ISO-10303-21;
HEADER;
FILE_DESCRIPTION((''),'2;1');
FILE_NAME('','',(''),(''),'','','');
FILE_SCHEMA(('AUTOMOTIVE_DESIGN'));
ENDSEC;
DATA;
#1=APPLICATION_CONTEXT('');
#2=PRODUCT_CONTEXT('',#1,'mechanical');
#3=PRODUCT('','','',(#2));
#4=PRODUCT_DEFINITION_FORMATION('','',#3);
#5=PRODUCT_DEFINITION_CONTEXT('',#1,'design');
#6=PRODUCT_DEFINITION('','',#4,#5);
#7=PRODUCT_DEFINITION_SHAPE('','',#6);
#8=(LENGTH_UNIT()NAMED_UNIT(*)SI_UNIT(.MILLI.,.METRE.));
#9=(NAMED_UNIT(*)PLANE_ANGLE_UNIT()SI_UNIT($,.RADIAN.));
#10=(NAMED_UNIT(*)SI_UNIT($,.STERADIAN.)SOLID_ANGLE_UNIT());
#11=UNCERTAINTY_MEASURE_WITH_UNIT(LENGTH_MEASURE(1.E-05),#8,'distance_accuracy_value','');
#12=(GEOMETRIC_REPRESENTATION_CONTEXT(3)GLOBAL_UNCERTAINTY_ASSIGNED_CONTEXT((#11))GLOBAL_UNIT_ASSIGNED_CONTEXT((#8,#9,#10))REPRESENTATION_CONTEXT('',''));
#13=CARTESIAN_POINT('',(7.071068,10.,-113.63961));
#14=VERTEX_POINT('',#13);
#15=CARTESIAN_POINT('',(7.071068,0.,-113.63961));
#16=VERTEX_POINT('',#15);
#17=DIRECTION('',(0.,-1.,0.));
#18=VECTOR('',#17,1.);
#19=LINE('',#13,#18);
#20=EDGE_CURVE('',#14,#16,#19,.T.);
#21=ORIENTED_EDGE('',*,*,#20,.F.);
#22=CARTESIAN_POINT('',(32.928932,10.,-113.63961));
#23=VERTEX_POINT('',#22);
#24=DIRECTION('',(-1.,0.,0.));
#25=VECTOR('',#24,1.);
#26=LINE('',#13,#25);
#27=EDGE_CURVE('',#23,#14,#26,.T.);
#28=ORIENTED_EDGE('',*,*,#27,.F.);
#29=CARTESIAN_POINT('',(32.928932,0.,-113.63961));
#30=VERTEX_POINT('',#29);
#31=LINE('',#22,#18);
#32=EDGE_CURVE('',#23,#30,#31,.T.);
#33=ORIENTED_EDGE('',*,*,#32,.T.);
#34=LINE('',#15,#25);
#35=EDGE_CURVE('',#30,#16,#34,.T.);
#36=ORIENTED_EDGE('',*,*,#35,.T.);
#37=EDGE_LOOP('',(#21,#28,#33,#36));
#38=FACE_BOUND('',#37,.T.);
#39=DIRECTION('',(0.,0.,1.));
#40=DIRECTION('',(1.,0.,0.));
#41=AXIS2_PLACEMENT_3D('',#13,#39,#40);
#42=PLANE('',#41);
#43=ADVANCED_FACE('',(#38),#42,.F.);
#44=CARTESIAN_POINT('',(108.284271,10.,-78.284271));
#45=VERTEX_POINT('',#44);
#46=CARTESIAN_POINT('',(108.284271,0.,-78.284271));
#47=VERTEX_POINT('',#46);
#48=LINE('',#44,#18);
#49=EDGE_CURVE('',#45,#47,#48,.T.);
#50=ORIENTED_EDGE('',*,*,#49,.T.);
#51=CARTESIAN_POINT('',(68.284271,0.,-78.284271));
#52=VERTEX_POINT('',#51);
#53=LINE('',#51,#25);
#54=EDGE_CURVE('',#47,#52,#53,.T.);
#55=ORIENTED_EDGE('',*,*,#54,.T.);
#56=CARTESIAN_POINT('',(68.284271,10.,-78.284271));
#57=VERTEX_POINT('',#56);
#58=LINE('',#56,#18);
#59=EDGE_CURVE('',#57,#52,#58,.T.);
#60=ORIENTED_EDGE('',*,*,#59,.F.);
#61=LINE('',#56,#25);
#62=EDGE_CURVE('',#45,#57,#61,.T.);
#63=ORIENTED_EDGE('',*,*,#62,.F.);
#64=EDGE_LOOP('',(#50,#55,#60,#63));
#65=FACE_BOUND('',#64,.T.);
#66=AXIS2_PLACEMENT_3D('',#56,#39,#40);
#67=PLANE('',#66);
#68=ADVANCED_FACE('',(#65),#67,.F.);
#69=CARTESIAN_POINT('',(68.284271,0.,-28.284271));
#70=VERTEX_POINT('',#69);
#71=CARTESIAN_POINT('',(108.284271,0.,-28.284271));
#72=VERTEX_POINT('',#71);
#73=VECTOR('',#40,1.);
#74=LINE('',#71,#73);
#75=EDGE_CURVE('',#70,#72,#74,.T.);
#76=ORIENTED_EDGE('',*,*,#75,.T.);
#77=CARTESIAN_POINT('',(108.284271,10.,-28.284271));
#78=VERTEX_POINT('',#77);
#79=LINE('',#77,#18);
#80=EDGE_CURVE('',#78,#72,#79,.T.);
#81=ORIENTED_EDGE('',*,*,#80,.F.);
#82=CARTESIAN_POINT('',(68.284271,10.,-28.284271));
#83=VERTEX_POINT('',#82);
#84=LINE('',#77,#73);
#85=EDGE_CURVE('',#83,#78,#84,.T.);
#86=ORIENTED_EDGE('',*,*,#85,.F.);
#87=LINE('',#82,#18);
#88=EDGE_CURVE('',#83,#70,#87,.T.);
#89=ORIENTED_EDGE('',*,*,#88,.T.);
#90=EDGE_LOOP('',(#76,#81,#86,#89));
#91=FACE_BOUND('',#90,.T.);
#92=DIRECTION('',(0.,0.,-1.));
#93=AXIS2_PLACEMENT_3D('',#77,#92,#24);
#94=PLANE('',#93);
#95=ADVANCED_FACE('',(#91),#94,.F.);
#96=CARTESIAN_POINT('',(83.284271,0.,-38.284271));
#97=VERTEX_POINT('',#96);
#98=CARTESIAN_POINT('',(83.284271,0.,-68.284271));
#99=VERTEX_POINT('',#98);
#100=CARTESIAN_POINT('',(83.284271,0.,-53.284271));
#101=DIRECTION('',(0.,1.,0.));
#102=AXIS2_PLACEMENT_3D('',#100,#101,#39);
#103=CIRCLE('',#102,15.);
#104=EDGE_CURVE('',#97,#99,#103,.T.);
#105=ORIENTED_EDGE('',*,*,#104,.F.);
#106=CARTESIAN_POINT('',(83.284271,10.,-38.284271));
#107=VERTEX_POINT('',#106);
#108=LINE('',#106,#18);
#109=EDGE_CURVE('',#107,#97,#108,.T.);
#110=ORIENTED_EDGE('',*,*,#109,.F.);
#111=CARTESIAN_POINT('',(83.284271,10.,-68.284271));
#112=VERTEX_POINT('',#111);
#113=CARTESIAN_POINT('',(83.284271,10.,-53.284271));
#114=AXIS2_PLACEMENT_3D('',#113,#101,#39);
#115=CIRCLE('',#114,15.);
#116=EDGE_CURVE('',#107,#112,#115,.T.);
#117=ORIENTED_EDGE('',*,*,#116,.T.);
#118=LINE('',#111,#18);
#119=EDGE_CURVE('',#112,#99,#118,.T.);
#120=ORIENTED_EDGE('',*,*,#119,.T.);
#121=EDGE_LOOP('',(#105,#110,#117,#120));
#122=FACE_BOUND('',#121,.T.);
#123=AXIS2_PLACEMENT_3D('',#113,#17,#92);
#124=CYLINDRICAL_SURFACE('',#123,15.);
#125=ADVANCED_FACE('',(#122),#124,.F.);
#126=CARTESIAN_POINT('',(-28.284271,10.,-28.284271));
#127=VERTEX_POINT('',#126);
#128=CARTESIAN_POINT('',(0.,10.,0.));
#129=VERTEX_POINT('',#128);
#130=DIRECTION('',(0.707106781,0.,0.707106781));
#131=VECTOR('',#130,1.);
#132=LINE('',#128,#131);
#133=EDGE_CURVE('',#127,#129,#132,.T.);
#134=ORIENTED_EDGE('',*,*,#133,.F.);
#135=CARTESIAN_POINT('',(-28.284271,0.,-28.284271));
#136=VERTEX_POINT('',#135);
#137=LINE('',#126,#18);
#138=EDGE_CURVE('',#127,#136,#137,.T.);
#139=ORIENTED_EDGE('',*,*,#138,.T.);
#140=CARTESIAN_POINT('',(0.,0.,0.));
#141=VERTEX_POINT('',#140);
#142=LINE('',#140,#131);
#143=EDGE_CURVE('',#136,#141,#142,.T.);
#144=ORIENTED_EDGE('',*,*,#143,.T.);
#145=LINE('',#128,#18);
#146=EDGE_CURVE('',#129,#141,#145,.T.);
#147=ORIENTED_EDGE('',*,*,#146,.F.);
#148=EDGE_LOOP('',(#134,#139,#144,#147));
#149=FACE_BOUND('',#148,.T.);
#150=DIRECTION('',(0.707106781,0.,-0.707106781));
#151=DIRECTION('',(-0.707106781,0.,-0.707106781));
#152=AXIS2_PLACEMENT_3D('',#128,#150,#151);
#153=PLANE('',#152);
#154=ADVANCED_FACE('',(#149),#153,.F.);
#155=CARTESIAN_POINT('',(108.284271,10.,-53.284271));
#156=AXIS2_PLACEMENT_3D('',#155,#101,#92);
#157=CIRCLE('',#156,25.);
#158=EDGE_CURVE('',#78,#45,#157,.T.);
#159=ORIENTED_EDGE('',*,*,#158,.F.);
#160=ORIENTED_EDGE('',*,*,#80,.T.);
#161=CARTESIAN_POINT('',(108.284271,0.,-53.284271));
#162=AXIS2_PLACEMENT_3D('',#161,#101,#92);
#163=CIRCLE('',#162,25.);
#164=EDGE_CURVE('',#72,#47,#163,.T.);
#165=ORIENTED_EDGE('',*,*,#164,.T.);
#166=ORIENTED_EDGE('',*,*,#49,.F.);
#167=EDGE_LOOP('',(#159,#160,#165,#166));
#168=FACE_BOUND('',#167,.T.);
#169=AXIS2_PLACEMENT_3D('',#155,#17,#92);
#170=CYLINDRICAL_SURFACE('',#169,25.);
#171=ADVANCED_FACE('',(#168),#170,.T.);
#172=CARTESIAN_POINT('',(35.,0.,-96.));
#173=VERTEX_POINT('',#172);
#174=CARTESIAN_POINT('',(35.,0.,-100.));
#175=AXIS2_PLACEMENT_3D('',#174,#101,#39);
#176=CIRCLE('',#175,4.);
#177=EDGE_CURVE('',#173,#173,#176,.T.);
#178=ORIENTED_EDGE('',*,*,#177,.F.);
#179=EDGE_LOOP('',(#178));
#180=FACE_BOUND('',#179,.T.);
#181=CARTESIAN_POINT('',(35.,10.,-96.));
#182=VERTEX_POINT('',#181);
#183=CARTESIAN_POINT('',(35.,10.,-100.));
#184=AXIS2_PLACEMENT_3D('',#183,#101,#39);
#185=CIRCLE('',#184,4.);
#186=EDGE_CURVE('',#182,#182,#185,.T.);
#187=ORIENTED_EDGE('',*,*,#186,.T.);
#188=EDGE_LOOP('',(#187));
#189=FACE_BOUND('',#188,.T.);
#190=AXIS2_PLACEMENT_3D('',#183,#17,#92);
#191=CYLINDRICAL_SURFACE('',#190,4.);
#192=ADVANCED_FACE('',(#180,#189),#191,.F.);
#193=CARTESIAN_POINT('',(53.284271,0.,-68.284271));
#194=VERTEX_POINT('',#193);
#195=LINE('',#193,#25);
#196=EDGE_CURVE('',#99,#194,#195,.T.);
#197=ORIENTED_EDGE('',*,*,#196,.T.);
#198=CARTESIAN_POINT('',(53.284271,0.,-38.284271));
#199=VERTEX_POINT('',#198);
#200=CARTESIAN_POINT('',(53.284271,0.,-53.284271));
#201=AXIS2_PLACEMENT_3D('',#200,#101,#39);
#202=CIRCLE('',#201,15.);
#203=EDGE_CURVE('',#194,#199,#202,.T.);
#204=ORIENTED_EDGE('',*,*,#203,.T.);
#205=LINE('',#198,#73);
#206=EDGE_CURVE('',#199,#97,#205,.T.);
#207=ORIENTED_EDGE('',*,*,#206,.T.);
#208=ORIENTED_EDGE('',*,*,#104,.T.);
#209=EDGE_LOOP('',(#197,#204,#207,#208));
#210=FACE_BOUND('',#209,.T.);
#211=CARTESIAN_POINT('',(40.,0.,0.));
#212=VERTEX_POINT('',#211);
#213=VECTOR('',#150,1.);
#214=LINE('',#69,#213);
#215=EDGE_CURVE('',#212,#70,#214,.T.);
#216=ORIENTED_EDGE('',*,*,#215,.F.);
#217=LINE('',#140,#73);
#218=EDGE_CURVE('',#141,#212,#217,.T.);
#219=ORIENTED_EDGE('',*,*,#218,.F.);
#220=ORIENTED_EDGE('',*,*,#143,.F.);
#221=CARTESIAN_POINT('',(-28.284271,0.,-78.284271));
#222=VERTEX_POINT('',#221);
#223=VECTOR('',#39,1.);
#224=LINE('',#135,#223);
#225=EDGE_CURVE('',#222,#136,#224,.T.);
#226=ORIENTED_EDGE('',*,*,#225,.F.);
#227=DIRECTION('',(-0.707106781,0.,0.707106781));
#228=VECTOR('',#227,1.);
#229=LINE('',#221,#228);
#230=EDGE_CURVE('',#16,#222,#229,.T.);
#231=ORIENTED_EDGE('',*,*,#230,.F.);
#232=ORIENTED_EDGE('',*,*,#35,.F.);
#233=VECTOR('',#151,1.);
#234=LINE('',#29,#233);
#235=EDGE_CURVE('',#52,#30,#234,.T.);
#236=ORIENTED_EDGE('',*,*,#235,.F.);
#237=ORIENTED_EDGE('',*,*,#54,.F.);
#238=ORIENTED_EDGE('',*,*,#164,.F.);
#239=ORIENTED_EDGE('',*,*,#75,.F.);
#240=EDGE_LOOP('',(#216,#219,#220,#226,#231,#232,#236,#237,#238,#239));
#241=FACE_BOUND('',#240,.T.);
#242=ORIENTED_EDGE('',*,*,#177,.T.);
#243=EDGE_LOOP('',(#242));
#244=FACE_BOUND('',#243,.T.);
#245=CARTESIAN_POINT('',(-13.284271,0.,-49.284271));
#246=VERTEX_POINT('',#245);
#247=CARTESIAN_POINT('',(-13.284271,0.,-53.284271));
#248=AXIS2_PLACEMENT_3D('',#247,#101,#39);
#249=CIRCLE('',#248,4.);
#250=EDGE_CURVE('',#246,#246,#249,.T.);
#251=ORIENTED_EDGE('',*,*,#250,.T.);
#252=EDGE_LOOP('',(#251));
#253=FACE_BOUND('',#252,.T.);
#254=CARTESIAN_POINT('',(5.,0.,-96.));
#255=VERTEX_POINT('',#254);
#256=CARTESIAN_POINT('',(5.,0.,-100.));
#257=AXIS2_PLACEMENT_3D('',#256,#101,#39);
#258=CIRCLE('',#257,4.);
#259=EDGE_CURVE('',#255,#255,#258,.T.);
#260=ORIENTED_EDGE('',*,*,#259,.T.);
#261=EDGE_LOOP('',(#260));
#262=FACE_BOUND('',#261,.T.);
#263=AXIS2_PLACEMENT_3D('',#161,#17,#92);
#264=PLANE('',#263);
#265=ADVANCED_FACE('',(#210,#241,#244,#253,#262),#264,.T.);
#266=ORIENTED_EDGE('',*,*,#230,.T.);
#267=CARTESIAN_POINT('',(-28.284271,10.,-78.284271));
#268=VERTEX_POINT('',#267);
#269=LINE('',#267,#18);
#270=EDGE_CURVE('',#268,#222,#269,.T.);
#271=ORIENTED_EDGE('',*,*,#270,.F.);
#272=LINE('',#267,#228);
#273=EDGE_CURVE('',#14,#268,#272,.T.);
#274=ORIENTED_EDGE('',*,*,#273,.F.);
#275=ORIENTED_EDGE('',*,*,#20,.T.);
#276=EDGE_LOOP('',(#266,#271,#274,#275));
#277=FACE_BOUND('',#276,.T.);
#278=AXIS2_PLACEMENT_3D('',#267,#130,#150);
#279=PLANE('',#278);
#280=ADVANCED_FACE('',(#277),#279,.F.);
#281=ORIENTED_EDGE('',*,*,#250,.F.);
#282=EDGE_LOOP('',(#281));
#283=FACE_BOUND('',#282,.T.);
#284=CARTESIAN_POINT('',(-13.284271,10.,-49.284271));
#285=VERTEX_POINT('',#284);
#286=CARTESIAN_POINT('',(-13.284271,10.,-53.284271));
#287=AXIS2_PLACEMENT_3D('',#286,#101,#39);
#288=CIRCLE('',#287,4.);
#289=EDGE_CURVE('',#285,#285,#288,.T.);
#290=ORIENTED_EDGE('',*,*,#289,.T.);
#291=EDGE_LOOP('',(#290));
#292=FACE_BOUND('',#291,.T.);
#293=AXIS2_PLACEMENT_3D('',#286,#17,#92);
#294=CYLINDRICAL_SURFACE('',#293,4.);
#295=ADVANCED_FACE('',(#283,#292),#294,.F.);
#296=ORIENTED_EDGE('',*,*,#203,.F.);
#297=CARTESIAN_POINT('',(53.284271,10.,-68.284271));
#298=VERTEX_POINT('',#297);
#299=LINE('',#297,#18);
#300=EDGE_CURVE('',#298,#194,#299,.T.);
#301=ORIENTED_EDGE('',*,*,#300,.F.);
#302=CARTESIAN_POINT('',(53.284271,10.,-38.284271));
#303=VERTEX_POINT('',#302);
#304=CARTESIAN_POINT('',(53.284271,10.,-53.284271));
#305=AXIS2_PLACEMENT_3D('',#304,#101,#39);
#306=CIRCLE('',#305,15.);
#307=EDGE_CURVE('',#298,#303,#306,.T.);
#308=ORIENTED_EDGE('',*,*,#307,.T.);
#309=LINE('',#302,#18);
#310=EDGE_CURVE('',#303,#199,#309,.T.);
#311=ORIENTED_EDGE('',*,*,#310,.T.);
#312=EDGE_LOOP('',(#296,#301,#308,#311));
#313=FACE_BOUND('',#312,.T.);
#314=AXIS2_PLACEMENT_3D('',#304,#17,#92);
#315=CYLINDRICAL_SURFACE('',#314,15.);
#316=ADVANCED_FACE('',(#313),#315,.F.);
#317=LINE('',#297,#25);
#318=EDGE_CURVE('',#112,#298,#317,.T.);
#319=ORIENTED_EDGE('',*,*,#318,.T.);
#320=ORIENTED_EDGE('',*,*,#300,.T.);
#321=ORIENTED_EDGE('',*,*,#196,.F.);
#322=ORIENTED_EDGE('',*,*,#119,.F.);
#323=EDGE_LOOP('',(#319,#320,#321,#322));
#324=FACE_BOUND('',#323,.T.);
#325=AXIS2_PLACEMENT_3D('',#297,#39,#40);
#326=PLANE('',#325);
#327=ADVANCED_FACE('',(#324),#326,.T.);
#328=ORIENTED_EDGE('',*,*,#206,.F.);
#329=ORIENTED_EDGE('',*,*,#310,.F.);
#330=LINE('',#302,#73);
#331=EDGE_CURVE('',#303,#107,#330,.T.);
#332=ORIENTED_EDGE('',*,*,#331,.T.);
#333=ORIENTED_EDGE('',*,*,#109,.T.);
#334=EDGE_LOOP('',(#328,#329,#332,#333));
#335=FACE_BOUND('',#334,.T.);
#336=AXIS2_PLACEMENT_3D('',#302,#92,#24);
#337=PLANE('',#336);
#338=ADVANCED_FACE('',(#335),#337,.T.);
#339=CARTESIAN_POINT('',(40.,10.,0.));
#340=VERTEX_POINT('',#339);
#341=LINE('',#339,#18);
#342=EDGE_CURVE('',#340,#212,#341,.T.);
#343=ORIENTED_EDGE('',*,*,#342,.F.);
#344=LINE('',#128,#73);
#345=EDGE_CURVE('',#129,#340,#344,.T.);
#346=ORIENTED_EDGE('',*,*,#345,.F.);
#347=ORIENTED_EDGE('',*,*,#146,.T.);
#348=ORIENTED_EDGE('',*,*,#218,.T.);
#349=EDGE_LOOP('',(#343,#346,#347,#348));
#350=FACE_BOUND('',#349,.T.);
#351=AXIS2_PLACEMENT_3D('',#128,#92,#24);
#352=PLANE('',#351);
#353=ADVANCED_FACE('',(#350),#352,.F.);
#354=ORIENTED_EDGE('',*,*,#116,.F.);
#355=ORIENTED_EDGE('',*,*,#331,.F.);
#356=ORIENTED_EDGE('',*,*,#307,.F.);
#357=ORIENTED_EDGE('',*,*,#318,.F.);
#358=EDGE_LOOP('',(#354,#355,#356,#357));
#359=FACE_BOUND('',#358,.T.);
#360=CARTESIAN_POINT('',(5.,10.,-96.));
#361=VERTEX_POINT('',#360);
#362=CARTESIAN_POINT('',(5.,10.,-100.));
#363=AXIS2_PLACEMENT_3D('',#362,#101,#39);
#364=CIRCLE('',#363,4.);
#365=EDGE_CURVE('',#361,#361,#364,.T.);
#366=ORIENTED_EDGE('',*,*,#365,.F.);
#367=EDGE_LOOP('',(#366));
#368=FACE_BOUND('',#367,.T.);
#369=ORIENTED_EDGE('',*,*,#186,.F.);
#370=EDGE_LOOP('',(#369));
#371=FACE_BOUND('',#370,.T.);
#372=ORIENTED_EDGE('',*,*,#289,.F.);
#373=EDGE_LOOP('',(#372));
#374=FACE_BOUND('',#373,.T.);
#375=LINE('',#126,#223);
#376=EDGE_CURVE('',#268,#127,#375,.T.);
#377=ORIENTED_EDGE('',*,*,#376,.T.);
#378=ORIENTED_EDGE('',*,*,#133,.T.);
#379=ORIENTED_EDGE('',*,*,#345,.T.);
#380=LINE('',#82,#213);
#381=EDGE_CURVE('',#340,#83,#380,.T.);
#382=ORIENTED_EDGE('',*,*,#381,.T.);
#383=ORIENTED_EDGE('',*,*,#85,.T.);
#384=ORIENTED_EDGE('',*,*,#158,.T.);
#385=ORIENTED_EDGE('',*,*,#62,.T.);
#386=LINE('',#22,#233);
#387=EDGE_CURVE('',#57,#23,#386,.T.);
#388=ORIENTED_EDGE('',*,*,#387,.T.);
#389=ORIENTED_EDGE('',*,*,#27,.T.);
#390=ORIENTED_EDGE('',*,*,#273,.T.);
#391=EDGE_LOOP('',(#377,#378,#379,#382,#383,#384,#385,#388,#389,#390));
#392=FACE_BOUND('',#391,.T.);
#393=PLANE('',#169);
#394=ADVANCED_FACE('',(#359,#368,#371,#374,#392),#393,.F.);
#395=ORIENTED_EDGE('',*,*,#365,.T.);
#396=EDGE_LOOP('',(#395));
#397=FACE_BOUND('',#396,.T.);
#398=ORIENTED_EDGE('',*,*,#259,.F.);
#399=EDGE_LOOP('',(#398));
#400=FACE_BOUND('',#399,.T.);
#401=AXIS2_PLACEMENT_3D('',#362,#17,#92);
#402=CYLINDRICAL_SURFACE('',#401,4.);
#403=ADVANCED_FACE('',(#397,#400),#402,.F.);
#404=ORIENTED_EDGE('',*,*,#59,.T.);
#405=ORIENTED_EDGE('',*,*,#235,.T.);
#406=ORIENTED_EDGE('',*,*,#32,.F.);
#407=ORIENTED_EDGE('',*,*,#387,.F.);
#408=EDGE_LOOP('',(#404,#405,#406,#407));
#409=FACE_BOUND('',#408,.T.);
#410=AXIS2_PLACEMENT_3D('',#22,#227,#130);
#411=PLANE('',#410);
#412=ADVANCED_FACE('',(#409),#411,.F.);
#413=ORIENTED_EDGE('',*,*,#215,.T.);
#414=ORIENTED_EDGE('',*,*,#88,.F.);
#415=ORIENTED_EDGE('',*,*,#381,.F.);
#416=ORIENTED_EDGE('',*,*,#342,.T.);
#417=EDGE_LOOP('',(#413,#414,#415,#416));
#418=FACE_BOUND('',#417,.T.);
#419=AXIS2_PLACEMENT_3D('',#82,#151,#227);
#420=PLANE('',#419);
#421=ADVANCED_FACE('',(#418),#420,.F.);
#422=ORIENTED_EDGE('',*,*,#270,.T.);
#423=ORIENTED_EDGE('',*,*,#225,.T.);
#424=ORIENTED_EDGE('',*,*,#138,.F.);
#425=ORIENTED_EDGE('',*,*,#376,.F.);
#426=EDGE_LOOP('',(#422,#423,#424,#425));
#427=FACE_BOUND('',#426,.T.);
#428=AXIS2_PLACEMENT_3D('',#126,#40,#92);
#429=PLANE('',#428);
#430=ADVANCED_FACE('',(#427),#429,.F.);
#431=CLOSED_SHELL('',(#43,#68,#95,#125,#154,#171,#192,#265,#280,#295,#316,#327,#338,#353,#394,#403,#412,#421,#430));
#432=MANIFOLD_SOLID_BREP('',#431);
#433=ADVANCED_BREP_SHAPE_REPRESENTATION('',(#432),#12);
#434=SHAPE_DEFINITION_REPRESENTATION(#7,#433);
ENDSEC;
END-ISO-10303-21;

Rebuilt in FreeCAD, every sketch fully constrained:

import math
import FreeCAD as App
import Part
import Sketcher

V = App.Vector
Q = App.Units.Quantity

doc = App.newDocument("Part")
body = doc.addObject("PartDesign::Body", "Body")

# Sketch on XZ plane
sketch1 = body.newObject("Sketcher::SketchObject", "Sketch")
sketch1.AttachmentSupport = (doc.getObject("XZ_Plane"), [""])
sketch1.MapMode = "FlatFace"
sketch1.addGeometry([
    Part.LineSegment(V(0, 0, 0), V(40, 0, 0)),  # 0
    Part.LineSegment(V(40, 0, 0), V(68.3, -28.3, 0)),  # 1
    Part.LineSegment(V(68.3, -28.3, 0), V(108.3, -28.3, 0)),  # 2
    Part.ArcOfCircle(Part.Circle(V(108.3, -53.3, 0), V(0, 0, 1), 25), math.radians(-90), math.radians(90)),  # 3
    Part.LineSegment(V(108.3, -78.3, 0), V(68.3, -78.3, 0)),  # 4
    Part.LineSegment(V(68.3, -78.3, 0), V(32.9, -113.6, 0)),  # 5
    Part.LineSegment(V(32.9, -113.6, 0), V(7.1, -113.6, 0)),  # 6
    Part.LineSegment(V(7.1, -113.6, 0), V(-28.3, -78.3, 0)),  # 7
    Part.LineSegment(V(-28.3, -78.3, 0), V(-28.3, -28.3, 0)),  # 8
    Part.LineSegment(V(-28.3, -28.3, 0), V(0, 0, 0)),  # 9
    Part.Circle(V(-13.3, -53.3, 0), V(0, 0, 1), 4),  # 10
    Part.ArcOfCircle(Part.Circle(V(53.3, -53.3, 0), V(0, 0, 1), 15), math.radians(90), math.radians(270)),  # 11
    Part.LineSegment(V(53.3, -68.3, 0), V(83.3, -68.3, 0)),  # 12
    Part.ArcOfCircle(Part.Circle(V(83.3, -53.3, 0), V(0, 0, 1), 15), math.radians(-90), math.radians(90)),  # 13
    Part.LineSegment(V(83.3, -38.3, 0), V(53.3, -38.3, 0)),  # 14
    Part.Circle(V(5, -100, 0), V(0, 0, 1), 4),  # 15
    Part.Circle(V(35, -100, 0), V(0, 0, 1), 4),  # 16
], False)
sketch1.addConstraint([
    Sketcher.Constraint("Coincident", 0, 2, 1, 1),
    Sketcher.Constraint("Coincident", 1, 2, 2, 1),
    Sketcher.Constraint("Tangent", 2, 2, 3, 2),
    Sketcher.Constraint("Tangent", 3, 1, 4, 1),
    Sketcher.Constraint("Coincident", 4, 2, 5, 1),
    Sketcher.Constraint("Coincident", 5, 2, 6, 1),
    Sketcher.Constraint("Coincident", 6, 2, 7, 1),
    Sketcher.Constraint("Coincident", 7, 2, 8, 1),
    Sketcher.Constraint("Coincident", 8, 2, 9, 1),
    Sketcher.Constraint("Coincident", 9, 2, 0, 1),
    Sketcher.Constraint("Tangent", 11, 2, 12, 1),
    Sketcher.Constraint("Tangent", 12, 2, 13, 1),
    Sketcher.Constraint("Tangent", 13, 2, 14, 1),
    Sketcher.Constraint("Tangent", 14, 2, 11, 1),
    Sketcher.Constraint("Horizontal", 0),
    Sketcher.Constraint("Horizontal", 2),
    Sketcher.Constraint("Horizontal", 4),
    Sketcher.Constraint("Horizontal", 6),
    Sketcher.Constraint("Vertical", 8),
    Sketcher.Constraint("Horizontal", 12),
    Sketcher.Constraint("Horizontal", 14),
    Sketcher.Constraint("Coincident", 9, 2, -1, 1),
    Sketcher.Constraint("Equal", 10, 15),
    Sketcher.Constraint("Equal", 15, 16),
    Sketcher.Constraint("Perpendicular", 1, 5),
    Sketcher.Constraint("Perpendicular", 5, 7),
    Sketcher.Constraint("Perpendicular", 7, 9),
    Sketcher.Constraint("Horizontal", 3, 3, 10, 3),
    Sketcher.Constraint("Horizontal", 10, 3, 11, 3),
    Sketcher.Constraint("Horizontal", 15, 3, 16, 3),
    Sketcher.Constraint("Horizontal", 4, 2, 7, 2),
    Sketcher.Constraint("Horizontal", 2, 2, 8, 2),
    Sketcher.Constraint("Vertical", 1, 2, 4, 2),
    Sketcher.Constraint("Equal", 0, 2),
    Sketcher.Constraint("Equal", 5, 7),
    Sketcher.Constraint("Diameter", 10, Q("8 mm")),
    Sketcher.Constraint("Radius", 3, Q("25 mm")),
    Sketcher.Constraint("Radius", 11, Q("15 mm")),
    Sketcher.Constraint("DistanceX", 0, 1, 0, 2, Q("40 mm")),
    Sketcher.Constraint("DistanceX", 12, 1, 12, 2, Q("30 mm")),
    Sketcher.Constraint("Distance", 1, Q("40 mm")),
    Sketcher.Constraint("Distance", 5, Q("50 mm")),
    Sketcher.Constraint("DistanceX", -1, 1, 15, 3, Q("5 mm")),
    Sketcher.Constraint("DistanceY", 15, 3, -1, 1, Q("100 mm")),
    Sketcher.Constraint("DistanceX", -1, 1, 16, 3, Q("35 mm")),
    Sketcher.Constraint("DistanceX", 11, 3, 3, 3, Q("55 mm")),
    Sketcher.Constraint("DistanceX", 7, 2, 10, 3, Q("15 mm")),
])
pad1 = body.newObject("PartDesign::Pad", "Pad")
pad1.Profile = sketch1
pad1.Length = 10
pad1.Reversed = True

doc.recompute()
